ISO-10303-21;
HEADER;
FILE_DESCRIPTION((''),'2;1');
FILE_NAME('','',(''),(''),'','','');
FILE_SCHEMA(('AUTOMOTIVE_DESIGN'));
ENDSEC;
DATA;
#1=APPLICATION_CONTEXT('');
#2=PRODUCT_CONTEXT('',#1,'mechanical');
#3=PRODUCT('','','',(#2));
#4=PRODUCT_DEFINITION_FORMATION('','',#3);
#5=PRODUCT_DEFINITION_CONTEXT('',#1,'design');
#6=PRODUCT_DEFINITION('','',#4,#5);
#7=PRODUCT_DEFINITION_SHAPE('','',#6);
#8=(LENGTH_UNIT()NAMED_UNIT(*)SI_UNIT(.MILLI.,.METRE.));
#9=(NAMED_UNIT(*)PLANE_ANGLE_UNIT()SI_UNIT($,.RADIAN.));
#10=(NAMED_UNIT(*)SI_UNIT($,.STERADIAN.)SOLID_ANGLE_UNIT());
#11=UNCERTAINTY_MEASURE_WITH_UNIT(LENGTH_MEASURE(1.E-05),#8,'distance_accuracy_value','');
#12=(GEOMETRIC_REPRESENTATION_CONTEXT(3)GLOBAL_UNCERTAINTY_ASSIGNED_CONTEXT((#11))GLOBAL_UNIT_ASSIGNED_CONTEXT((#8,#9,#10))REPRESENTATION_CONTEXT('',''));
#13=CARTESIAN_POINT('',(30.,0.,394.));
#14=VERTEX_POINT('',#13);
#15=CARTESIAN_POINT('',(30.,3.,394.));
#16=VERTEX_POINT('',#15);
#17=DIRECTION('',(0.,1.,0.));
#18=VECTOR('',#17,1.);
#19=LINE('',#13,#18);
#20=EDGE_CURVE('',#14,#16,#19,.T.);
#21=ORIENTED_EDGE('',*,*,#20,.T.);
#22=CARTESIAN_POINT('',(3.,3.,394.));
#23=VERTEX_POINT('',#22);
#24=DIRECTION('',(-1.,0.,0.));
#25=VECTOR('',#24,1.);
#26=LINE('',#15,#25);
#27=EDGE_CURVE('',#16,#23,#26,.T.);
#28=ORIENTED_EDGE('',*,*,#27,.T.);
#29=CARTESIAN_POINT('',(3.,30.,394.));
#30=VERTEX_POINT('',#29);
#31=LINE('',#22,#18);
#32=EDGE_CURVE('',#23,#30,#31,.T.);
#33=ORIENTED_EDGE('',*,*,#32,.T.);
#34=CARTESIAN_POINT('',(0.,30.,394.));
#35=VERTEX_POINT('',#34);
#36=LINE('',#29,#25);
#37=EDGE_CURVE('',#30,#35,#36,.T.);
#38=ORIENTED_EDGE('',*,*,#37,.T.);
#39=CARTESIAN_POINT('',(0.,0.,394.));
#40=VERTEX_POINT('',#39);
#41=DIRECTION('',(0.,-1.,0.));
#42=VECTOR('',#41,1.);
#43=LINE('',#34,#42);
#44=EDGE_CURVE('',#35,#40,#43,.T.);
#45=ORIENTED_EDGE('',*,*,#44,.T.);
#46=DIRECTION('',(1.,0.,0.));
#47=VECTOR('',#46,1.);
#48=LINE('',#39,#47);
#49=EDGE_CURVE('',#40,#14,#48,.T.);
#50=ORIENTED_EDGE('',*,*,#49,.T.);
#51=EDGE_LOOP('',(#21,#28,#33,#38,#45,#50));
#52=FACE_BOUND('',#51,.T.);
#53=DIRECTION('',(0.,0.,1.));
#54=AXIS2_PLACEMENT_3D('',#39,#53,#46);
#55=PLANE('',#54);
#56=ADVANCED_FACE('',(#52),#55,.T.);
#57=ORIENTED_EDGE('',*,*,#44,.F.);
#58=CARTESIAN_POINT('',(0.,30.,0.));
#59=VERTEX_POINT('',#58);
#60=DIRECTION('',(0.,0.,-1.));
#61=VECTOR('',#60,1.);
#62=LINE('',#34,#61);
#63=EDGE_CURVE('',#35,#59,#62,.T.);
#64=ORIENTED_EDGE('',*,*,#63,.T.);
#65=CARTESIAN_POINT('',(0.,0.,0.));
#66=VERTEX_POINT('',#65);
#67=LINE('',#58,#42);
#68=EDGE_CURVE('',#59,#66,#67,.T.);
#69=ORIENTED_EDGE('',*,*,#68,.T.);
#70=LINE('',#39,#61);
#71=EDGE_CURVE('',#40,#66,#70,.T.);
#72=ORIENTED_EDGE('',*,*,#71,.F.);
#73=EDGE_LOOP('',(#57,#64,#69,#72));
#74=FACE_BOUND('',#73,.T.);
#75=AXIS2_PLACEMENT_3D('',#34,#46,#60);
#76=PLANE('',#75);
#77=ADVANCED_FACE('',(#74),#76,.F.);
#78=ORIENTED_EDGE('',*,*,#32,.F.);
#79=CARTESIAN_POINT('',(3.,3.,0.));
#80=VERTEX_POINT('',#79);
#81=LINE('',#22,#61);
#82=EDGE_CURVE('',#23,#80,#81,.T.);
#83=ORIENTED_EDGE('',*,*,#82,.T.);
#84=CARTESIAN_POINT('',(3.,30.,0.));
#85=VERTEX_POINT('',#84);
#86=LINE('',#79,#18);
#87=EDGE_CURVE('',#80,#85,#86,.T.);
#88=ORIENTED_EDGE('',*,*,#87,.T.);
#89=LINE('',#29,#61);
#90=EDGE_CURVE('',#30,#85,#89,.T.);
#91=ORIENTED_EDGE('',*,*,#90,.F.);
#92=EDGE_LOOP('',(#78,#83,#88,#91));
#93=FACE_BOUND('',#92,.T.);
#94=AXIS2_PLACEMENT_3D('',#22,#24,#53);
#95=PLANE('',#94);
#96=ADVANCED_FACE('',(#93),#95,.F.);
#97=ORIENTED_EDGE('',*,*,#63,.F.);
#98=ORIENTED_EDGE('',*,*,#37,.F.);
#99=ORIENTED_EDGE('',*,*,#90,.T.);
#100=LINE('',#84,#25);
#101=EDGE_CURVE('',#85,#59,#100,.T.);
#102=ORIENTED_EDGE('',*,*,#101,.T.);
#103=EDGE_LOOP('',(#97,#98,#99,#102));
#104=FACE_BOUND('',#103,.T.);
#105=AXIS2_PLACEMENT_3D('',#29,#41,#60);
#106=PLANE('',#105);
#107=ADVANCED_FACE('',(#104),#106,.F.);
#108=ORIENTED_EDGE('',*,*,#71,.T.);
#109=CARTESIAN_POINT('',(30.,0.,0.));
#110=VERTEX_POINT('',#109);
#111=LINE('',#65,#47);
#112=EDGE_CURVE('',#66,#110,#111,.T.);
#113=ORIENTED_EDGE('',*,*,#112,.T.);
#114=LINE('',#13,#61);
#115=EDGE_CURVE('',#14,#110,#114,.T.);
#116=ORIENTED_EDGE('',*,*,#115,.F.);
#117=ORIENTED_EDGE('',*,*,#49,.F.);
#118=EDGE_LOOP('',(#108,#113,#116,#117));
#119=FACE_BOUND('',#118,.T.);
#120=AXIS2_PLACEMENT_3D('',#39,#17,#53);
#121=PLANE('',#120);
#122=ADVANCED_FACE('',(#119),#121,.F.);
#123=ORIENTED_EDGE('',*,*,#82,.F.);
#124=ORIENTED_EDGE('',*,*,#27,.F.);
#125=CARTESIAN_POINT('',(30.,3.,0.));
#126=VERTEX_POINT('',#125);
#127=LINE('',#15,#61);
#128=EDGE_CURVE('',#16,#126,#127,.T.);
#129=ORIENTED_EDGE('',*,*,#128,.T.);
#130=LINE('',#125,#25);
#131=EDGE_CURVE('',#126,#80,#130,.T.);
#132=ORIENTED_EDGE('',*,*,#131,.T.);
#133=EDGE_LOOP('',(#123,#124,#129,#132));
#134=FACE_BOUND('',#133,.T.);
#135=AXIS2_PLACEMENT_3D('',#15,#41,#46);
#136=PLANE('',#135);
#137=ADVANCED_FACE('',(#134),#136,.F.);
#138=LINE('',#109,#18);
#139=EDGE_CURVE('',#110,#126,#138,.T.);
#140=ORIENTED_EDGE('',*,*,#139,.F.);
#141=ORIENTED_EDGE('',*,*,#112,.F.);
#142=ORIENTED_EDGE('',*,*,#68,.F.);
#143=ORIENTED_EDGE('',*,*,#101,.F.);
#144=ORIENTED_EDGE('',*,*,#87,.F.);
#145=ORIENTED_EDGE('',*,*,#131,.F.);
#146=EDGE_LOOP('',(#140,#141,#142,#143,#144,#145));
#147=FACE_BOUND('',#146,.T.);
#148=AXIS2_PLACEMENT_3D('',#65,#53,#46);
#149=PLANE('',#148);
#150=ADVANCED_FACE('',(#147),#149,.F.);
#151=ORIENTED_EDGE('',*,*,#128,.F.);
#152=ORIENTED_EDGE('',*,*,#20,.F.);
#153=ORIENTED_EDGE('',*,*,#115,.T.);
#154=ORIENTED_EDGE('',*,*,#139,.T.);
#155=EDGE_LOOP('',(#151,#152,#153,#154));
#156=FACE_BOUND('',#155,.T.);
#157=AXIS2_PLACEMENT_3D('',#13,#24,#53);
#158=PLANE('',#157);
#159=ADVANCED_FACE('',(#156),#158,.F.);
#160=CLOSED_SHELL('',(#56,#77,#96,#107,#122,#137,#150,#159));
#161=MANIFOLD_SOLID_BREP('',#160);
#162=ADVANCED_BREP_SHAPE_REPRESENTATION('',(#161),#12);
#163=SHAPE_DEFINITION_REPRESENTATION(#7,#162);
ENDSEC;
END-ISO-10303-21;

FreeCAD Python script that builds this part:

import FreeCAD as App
import Part
import Sketcher

V = App.Vector


def add_polygon(sketch, points):
    """Adds a closed chain of lines whose ends are joined by coincident constraints."""
    first, n = sketch.GeometryCount, len(points)
    for a, b in zip(points, points[1:] + points[:1]):
        sketch.addGeometry(Part.LineSegment(App.Vector(*a, 0), App.Vector(*b, 0)), False)
    for i in range(n):
        sketch.addConstraint(Sketcher.Constraint("Coincident", first + i, 2, first + (i + 1) % n, 1))

doc = App.newDocument("Part")
body = doc.addObject("PartDesign::Body", "Body")

sketch1 = doc.addObject("Sketcher::SketchObject", "Sketch")
body.addObject(sketch1)
sketch1.AttachmentSupport = (doc.XY_Plane, [""])
sketch1.MapMode = "FlatFace"
add_polygon(sketch1, [(0, 30), (0, 0), (30, 0), (30, 3), (3, 3), (3, 30)])
sketch1.addConstraint(Sketcher.Constraint("Vertical", 0))
sketch1.addConstraint(Sketcher.Constraint("Horizontal", 1))
sketch1.addConstraint(Sketcher.Constraint("Vertical", 2))
sketch1.addConstraint(Sketcher.Constraint("Horizontal", 3))
sketch1.addConstraint(Sketcher.Constraint("Vertical", 4))
sketch1.addConstraint(Sketcher.Constraint("Horizontal", 5))
sketch1.addConstraint(Sketcher.Constraint("Coincident", 0, 2, -1, 1))
sketch1.addConstraint(Sketcher.Constraint("Equal", 1, 0))
sketch1.addConstraint(Sketcher.Constraint("Equal", 5, 2))
sketch1.addConstraint(Sketcher.Constraint("DistanceX", 1, 1, 1, 2, 30.0))
sketch1.addConstraint(Sketcher.Constraint("DistanceX", 3, 2, 3, 1, 27.0))
pad1 = doc.addObject("PartDesign::Pad", "Pad")
body.addObject(pad1)
pad1.Profile = sketch1
pad1.Length = 394

doc.recompute()
